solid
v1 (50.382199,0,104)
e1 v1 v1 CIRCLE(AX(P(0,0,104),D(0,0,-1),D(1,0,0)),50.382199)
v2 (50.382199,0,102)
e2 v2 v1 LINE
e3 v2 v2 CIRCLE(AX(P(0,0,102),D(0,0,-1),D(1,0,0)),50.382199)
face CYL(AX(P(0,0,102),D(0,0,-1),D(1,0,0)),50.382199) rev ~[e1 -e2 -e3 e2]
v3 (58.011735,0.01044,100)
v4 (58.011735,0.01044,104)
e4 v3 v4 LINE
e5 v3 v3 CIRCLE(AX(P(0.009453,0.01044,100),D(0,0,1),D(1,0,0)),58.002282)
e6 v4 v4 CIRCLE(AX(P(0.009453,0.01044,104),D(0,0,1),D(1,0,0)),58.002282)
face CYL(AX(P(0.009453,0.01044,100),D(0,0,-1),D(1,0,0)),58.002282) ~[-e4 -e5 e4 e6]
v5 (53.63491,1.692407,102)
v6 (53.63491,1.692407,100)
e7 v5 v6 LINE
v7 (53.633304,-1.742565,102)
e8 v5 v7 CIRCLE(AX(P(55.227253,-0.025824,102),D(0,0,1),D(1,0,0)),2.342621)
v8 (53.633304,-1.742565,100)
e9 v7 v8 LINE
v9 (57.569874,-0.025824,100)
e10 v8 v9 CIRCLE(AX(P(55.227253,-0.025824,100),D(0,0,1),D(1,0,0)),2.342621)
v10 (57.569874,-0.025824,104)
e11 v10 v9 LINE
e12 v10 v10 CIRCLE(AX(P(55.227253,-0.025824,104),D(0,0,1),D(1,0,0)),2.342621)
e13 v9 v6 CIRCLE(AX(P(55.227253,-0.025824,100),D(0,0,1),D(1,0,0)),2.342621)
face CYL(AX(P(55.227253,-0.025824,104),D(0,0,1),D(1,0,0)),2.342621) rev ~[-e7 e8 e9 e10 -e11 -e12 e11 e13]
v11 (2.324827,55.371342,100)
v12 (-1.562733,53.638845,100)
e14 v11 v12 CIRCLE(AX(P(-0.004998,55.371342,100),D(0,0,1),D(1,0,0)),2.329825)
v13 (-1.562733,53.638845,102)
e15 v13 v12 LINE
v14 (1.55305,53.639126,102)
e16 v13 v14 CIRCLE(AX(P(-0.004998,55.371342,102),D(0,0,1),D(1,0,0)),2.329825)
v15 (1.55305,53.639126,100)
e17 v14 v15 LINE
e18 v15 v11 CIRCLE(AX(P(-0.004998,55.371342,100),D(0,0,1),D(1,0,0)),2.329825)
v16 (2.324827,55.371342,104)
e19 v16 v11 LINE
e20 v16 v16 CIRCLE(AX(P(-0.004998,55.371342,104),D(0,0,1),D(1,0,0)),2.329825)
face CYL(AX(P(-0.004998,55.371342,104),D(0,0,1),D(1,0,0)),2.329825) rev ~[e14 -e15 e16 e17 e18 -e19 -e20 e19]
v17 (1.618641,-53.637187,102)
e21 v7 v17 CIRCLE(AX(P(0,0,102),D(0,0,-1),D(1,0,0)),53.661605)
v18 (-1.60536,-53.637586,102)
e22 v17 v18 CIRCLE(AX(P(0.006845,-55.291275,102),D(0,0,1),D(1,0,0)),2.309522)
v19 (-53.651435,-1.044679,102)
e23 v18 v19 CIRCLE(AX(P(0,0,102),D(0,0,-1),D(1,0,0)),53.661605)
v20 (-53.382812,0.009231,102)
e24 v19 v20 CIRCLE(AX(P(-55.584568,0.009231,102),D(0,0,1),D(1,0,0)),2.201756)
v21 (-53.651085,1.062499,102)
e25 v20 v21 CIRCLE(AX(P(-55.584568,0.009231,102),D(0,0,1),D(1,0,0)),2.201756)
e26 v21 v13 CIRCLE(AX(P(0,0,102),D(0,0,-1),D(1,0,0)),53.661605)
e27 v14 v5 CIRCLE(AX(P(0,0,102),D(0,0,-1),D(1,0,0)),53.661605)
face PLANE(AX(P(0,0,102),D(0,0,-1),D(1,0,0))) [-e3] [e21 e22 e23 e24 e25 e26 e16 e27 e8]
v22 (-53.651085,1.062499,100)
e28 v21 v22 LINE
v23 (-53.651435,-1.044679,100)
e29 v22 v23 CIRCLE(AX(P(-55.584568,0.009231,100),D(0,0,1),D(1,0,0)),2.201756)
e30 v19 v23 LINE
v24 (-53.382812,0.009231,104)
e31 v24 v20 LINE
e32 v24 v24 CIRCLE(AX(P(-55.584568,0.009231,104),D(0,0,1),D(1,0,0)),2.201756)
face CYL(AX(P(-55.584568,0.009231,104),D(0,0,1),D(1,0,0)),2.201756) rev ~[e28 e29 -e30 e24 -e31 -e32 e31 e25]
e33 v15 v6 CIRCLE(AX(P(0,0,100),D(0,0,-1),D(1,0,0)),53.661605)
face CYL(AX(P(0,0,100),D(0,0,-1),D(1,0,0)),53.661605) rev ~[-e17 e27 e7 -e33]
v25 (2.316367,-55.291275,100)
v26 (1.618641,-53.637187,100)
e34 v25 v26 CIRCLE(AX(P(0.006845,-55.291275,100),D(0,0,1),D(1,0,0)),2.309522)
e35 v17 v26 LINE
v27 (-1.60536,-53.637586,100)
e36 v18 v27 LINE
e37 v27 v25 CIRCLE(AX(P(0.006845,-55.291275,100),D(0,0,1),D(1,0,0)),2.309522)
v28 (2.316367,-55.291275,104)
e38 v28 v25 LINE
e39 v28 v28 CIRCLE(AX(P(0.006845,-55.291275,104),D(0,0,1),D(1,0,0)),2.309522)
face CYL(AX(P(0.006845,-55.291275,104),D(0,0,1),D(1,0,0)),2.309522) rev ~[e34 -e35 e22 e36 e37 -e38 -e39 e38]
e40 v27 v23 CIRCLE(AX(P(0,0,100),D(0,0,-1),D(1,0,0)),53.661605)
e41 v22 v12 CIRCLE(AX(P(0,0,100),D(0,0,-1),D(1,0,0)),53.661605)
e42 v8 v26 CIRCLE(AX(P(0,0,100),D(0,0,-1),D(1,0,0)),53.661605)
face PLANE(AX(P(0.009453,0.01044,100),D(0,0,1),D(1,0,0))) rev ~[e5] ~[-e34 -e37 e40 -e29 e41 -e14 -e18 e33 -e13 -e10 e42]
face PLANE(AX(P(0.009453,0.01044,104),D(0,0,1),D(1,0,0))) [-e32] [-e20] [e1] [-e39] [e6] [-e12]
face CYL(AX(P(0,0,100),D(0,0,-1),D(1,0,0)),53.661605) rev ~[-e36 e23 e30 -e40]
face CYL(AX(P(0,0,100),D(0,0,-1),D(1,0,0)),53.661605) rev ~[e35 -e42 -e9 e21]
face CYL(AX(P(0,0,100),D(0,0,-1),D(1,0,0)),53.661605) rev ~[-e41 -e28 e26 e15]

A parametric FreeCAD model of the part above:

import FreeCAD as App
import Part
import Sketcher
from FreeCAD import Vector

doc = App.newDocument("Part")
body = doc.addObject("PartDesign::Body", "Body")

# Sketch on XY plane
sketch1 = doc.addObject("Sketcher::SketchObject", "Sketch")
body.addObject(sketch1)
sketch1.AttachmentSupport = (doc.XY_Plane, [""])
sketch1.MapMode = "FlatFace"
sketch1.AttachmentOffset = App.Placement(Vector(0, 0, 100), App.Rotation())
sketch1.addGeometry(Part.Circle(Vector(0.009453, 0.01044, 0), Vector(0, 0, 1), 58.002282), False)
sketch1.addConstraint(Sketcher.Constraint("Diameter", 0, 116.004564))
sketch1.addConstraint(Sketcher.Constraint("DistanceY", -1, 1, 0, 3, 0.01044))
sketch1.addConstraint(Sketcher.Constraint("DistanceX", -1, 1, 0, 3, 0.009453))
pad1 = doc.addObject("PartDesign::Pad", "Pad")
body.addObject(pad1)
pad1.Profile = sketch1
pad1.Length = 4

# Sketch on XY plane
sketch2 = doc.addObject("Sketcher::SketchObject", "Sketch001")
body.addObject(sketch2)
sketch2.AttachmentSupport = (doc.XY_Plane, [""])
sketch2.MapMode = "FlatFace"
sketch2.AttachmentOffset = App.Placement(Vector(0, 0, 100), App.Rotation())
sketch2.addGeometry(Part.Circle(Vector(0, 0, 0), Vector(0, 0, 1), 53.661605), False)
sketch2.addConstraint(Sketcher.Constraint("Coincident", 0, 3, -1, 1))
sketch2.addConstraint(Sketcher.Constraint("Diameter", 0, 107.32321))
pocket1 = doc.addObject("PartDesign::Pocket", "Pocket")
body.addObject(pocket1)
pocket1.Profile = sketch2
pocket1.Length = 2
pocket1.Reversed = True

# Sketch on XY plane
sketch3 = doc.addObject("Sketcher::SketchObject", "Sketch002")
body.addObject(sketch3)
sketch3.AttachmentSupport = (doc.XY_Plane, [""])
sketch3.MapMode = "FlatFace"
sketch3.AttachmentOffset = App.Placement(Vector(0, 0, 102), App.Rotation())
sketch3.addGeometry(Part.Circle(Vector(0, 0, 0), Vector(0, 0, 1), 50.382199), False)
sketch3.addConstraint(Sketcher.Constraint("Coincident", 0, 3, -1, 1))
sketch3.addConstraint(Sketcher.Constraint("Diameter", 0, 100.764398))
pocket2 = doc.addObject("PartDesign::Pocket", "Pocket001")
body.addObject(pocket2)
pocket2.Profile = sketch3
pocket2.Length = 10
pocket2.Reversed = True

# Sketch on XY plane
sketch4 = doc.addObject("Sketcher::SketchObject", "Sketch003")
body.addObject(sketch4)
sketch4.AttachmentSupport = (doc.XY_Plane, [""])
sketch4.MapMode = "FlatFace"
sketch4.AttachmentOffset = App.Placement(Vector(0, 0, 104), App.Rotation())
sketch4.addGeometry(Part.Circle(Vector(55.227253, -0.025824, 0), Vector(0, 0, 1), 2.342621), False)
sketch4.addGeometry(Part.Circle(Vector(0.006845, -55.291275, 0), Vector(0, 0, 1), 2.309522), False)
sketch4.addGeometry(Part.Circle(Vector(-55.584568, 0.009231, 0), Vector(0, 0, 1), 2.201756), False)
sketch4.addGeometry(Part.Circle(Vector(-0.004998, 55.371342, 0), Vector(0, 0, 1), 2.329825), False)
sketch4.addConstraint(Sketcher.Constraint("Diameter", 0, 4.685242))
sketch4.addConstraint(Sketcher.Constraint("Diameter", 3, 4.65965))
sketch4.addConstraint(Sketcher.Constraint("Diameter", 1, 4.619044))
sketch4.addConstraint(Sketcher.Constraint("Diameter", 2, 4.403512))
sketch4.addConstraint(Sketcher.Constraint("DistanceY", -1, 1, 2, 3, 0.009231))
sketch4.addConstraint(Sketcher.Constraint("DistanceY", 1, 3, 0, 3, 55.265451))
sketch4.addConstraint(Sketcher.Constraint("DistanceX", 2, 3, 0, 3, 110.811821))
sketch4.addConstraint(Sketcher.Constraint("DistanceX", 3, 3, 0, 3, 55.232251))
sketch4.addConstraint(Sketcher.Constraint("DistanceY", 2, 3, 3, 3, 55.362111))
sketch4.addConstraint(Sketcher.Constraint("DistanceX", -1, 1, 0, 3, 55.227253))
sketch4.addConstraint(Sketcher.Constraint("DistanceY", 0, 3, -1, 1, 0.025824))
sketch4.addConstraint(Sketcher.Constraint("DistanceX", -1, 1, 1, 3, 0.006845))
pocket3 = doc.addObject("PartDesign::Pocket", "Pocket002")
body.addObject(pocket3)
pocket3.Profile = sketch4
pocket3.Length = 5

doc.recompute()
